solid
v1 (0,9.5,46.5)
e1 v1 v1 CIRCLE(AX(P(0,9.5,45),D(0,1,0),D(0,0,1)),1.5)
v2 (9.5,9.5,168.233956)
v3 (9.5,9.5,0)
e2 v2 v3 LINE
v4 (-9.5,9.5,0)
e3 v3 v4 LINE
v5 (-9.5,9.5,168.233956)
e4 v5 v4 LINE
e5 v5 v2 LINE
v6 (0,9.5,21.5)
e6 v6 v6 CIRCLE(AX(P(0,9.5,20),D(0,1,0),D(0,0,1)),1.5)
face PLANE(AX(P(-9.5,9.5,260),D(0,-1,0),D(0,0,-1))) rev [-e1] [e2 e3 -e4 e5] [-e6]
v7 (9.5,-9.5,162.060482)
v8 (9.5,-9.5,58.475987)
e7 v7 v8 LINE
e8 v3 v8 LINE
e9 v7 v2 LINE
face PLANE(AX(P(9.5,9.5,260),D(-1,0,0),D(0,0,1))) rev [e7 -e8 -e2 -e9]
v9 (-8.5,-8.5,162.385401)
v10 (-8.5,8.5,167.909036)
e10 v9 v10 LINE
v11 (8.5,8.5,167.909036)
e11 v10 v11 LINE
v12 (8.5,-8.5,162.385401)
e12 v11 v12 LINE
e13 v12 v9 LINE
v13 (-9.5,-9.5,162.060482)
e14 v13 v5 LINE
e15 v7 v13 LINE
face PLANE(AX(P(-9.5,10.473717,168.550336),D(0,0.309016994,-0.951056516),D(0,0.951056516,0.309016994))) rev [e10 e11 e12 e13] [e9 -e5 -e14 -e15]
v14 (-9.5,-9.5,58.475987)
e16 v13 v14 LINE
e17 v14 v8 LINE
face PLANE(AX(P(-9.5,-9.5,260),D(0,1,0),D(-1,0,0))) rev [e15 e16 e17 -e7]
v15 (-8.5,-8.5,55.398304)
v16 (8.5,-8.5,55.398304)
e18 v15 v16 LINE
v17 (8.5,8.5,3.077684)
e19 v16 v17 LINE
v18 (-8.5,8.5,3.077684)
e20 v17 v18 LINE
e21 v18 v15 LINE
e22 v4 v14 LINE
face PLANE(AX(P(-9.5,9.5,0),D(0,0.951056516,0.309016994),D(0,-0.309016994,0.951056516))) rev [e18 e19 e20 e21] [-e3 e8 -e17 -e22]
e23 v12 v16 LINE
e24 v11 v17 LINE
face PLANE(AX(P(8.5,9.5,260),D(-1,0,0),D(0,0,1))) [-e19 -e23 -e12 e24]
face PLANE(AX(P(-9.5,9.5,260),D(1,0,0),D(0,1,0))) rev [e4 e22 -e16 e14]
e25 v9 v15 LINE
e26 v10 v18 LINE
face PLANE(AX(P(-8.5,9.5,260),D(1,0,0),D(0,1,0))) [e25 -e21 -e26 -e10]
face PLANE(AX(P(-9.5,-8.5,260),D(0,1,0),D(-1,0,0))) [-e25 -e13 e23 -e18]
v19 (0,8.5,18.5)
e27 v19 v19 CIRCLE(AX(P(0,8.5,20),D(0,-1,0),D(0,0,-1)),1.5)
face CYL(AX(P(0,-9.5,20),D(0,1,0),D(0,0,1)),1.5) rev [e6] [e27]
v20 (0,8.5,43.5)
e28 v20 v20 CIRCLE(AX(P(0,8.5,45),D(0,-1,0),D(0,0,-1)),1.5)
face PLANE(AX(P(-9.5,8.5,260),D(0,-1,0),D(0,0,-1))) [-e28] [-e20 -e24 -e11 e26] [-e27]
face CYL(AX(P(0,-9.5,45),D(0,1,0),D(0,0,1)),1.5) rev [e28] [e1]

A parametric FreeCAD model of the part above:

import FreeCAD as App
import Part
import Sketcher

V = App.Vector
Q = App.Units.Quantity


def faces_at(feature, points):
    """Names of the faces that lie closest to the given points."""
    faces = feature.Shape.Faces
    near = lambda p: min(range(len(faces)), key=lambda i: faces[i].distToShape(Part.Vertex(*p))[0])
    return sorted({f"Face{near(p) + 1}" for p in points})

doc = App.newDocument("Part")
body = doc.addObject("PartDesign::Body", "Body")

# Sketch on XY plane
sketch1 = body.newObject("Sketcher::SketchObject", "Sketch")
sketch1.AttachmentSupport = (doc.getObject("XY_Plane"), [""])
sketch1.MapMode = "FlatFace"
sketch1.addGeometry(Part.LineSegment(V(-10, 10, 0), V(-10, -10, 0)), False)
sketch1.addGeometry(Part.LineSegment(V(-10, -10, 0), V(10, -10, 0)), False)
sketch1.addGeometry(Part.LineSegment(V(10, -10, 0), V(10, 10, 0)), False)
sketch1.addGeometry(Part.LineSegment(V(10, 10, 0), V(-10, 10, 0)), False)
sketch1.addConstraint(Sketcher.Constraint("Coincident", 0, 2, 1, 1))
sketch1.addConstraint(Sketcher.Constraint("Coincident", 1, 2, 2, 1))
sketch1.addConstraint(Sketcher.Constraint("Coincident", 2, 2, 3, 1))
sketch1.addConstraint(Sketcher.Constraint("Coincident", 3, 2, 0, 1))
sketch1.addConstraint(Sketcher.Constraint("Vertical", 0))
sketch1.addConstraint(Sketcher.Constraint("Horizontal", 1))
sketch1.addConstraint(Sketcher.Constraint("Vertical", 2))
sketch1.addConstraint(Sketcher.Constraint("Horizontal", 3))
sketch1.addConstraint(Sketcher.Constraint("Symmetric", 0, 2, 2, 2, -1, 1))
sketch1.addConstraint(Sketcher.Constraint("Equal", 3, 0))
sketch1.addConstraint(Sketcher.Constraint("DistanceX", 1, 1, 1, 2, Q("19 mm")))
pad1 = body.newObject("PartDesign::Pad", "Pad")
pad1.Profile = sketch1
pad1.Length = 260
doc.recompute()

thickness = body.newObject("PartDesign::Thickness", "Thickness")
thickness.Base = (pad1, faces_at(pad1, [(0, 0, 260), (0, 0, 0)]))
thickness.Value = 1
thickness.Reversed = True
thickness.Join = "Intersection"

# Sketch on YZ plane
sketch2 = body.newObject("Sketcher::SketchObject", "Sketch001")
sketch2.AttachmentSupport = (doc.getObject("YZ_Plane"), [""])
sketch2.MapMode = "FlatFace"
sketch2.AttachmentOffset = App.Placement(V(0, 0, 9.5), App.Rotation())
sketch2.addGeometry(Part.LineSegment(V(10, 0, 0), V(-10, 58, 0)), False)
sketch2.addGeometry(Part.LineSegment(V(-10, 58, 0), V(-10, 0, 0)), False)
sketch2.addGeometry(Part.LineSegment(V(-10, 0, 0), V(10, 0, 0)), False)
sketch2.addConstraint(Sketcher.Constraint("Coincident", 0, 2, 1, 1))
sketch2.addConstraint(Sketcher.Constraint("Coincident", 1, 2, 2, 1))
sketch2.addConstraint(Sketcher.Constraint("Coincident", 2, 2, 0, 1))
sketch2.addConstraint(Sketcher.Constraint("Vertical", 1))
sketch2.addConstraint(Sketcher.Constraint("Horizontal", 2))
sketch2.addConstraint(Sketcher.Constraint("Symmetric", 1, 2, 2, 2, -1, 1))
sketch2.addConstraint(Sketcher.Constraint("DistanceX", 2, 1, 2, 2, Q("19 mm")))
sketch2.addConstraint(Sketcher.Constraint("Angle", 0, Q("108 deg")))
pocket1 = body.newObject("PartDesign::Pocket", "Pocket")
pocket1.Profile = sketch2
pocket1.Type = "ThroughAll"

# Sketch on YZ plane
sketch3 = body.newObject("Sketcher::SketchObject", "Sketch002")
sketch3.AttachmentSupport = (doc.getObject("YZ_Plane"), [""])
sketch3.MapMode = "FlatFace"
sketch3.AttachmentOffset = App.Placement(V(0, 0, 9.5), App.Rotation())
sketch3.addGeometry(Part.LineSegment(V(-12, 161, 0), V(10, 169, 0)), False)
sketch3.addGeometry(Part.LineSegment(V(10, 169, 0), V(60, 185, 0)), False)
sketch3.addGeometry(Part.LineSegment(V(60, 185, 0), V(22, 289, 0)), False)
sketch3.addGeometry(Part.LineSegment(V(22, 289, 0), V(-46, 265, 0)), False)
sketch3.addGeometry(Part.LineSegment(V(-46, 265, 0), V(-12, 161, 0)), False)
sketch3.addConstraint(Sketcher.Constraint("Coincident", 0, 2, 1, 1))
sketch3.addConstraint(Sketcher.Constraint("Coincident", 1, 2, 2, 1))
sketch3.addConstraint(Sketcher.Constraint("Coincident", 2, 2, 3, 1))
sketch3.addConstraint(Sketcher.Constraint("Coincident", 3, 2, 4, 1))
sketch3.addConstraint(Sketcher.Constraint("Coincident", 4, 2, 0, 1))
sketch3.addConstraint(Sketcher.Constraint("Parallel", 0, 1))
sketch3.addConstraint(Sketcher.Constraint("Perpendicular", 2, 3))
sketch3.addConstraint(Sketcher.Constraint("Perpendicular", 1, 4))
sketch3.addConstraint(Sketcher.Constraint("Angle", 0, Q("18 deg")))
sketch3.addConstraint(Sketcher.Constraint("Distance", 3, Q("71.87214 mm")))
sketch3.addConstraint(Sketcher.Constraint("Distance", 4, Q("108.850789 mm")))
sketch3.addConstraint(Sketcher.Constraint("DistanceY", -1, 1, 1, 2, Q("184.51607 mm")))
sketch3.addConstraint(Sketcher.Constraint("DistanceX", -1, 1, 2, 2, Q("22.14975 mm")))
sketch3.addConstraint(Sketcher.Constraint("DistanceX", 3, 2, -1, 1, Q("45.509569 mm")))
sketch3.addConstraint(Sketcher.Constraint("DistanceX", 0, 2, 1, 2, Q("49.137479 mm")))
pocket2 = body.newObject("PartDesign::Pocket", "Pocket001")
pocket2.Profile = sketch3
pocket2.Type = "ThroughAll"

# Sketch on XZ plane
sketch4 = body.newObject("Sketcher::SketchObject", "Sketch003")
sketch4.AttachmentSupport = (doc.getObject("XZ_Plane"), [""])
sketch4.MapMode = "FlatFace"
sketch4.AttachmentOffset = App.Placement(V(0, 0, -9.5), App.Rotation())
sketch4.addGeometry(Part.Circle(V(0, 20, 0), V(0, 0, 1), 1.5), False)
sketch4.addGeometry(Part.Circle(V(0, 45, 0), V(0, 0, 1), 1.5), False)
sketch4.addConstraint(Sketcher.Constraint("Equal", 0, 1))
sketch4.addConstraint(Sketcher.Constraint("PointOnObject", 0, 3, -2))
sketch4.addConstraint(Sketcher.Constraint("PointOnObject", 1, 3, -2))
sketch4.addConstraint(Sketcher.Constraint("Diameter", 0, Q("3 mm")))
sketch4.addConstraint(Sketcher.Constraint("DistanceY", -1, 1, 0, 3, Q("20 mm")))
sketch4.addConstraint(Sketcher.Constraint("DistanceY", -1, 1, 1, 3, Q("45 mm")))
pocket3 = body.newObject("PartDesign::Pocket", "Pocket002")
pocket3.Profile = sketch4
pocket3.Type = "ThroughAll"
pocket3.Reversed = True

doc.recompute()
